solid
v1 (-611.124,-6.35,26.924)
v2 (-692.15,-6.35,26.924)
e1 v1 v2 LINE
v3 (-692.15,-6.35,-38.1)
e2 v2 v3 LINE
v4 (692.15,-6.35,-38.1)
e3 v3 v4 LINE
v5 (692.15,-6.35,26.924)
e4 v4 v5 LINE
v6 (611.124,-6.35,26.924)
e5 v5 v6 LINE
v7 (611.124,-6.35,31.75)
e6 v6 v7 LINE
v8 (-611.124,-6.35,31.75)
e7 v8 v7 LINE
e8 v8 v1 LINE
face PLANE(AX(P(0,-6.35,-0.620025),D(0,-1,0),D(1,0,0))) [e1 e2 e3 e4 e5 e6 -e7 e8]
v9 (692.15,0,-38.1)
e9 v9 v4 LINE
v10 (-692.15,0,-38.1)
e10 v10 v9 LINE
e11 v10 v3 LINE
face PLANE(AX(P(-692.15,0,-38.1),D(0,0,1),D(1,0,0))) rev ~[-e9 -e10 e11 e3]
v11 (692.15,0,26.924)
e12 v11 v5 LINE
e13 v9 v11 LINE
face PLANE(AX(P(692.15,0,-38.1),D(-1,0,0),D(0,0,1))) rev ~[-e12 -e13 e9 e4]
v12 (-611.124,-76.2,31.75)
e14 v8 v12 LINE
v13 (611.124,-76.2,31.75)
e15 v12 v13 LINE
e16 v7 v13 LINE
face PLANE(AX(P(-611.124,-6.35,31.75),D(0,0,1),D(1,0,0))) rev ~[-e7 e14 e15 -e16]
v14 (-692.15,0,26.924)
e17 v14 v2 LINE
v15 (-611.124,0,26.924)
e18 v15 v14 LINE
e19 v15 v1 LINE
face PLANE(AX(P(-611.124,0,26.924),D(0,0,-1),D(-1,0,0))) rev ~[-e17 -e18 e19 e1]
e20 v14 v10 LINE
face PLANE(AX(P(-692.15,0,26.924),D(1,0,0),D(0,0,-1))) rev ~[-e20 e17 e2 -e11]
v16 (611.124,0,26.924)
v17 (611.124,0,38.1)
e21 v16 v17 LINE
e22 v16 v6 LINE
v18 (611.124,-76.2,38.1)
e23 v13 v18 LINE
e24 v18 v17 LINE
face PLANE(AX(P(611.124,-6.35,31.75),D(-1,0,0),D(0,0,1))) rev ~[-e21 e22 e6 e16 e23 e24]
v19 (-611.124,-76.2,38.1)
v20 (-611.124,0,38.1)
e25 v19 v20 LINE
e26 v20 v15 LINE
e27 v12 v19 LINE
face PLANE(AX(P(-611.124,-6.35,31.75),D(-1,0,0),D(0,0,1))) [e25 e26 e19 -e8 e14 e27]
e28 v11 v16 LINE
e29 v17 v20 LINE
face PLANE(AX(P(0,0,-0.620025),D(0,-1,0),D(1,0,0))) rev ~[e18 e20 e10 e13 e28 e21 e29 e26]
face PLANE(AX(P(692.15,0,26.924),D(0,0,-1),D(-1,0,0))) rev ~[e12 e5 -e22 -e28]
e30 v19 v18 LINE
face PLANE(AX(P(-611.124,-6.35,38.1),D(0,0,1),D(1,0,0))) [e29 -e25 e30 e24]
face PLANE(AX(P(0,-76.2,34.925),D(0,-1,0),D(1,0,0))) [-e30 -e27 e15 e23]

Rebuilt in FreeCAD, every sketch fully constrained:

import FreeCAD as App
import Part
import Sketcher
Q = App.Units.Quantity

doc = App.newDocument("Part")
params = doc.addObject("Spreadsheet::Sheet", "Params")
for row, (alias, value) in enumerate([
    ("sketch1_width", "54.5 in"),
    ("sketch1_width2", "3.19 in"),
    ("sketch1_height", "2.56 in"),
    ("pad1_length", "0.25 in"),
    ("sketch2_width", "48.12 in"),
    ("sketch2_height", "0.25 in"),
    ("pad2_length", "2.75 in"),
], start=1):
    params.set(f"A{row}", alias)
    params.set(f"B{row}", "=" + value)
    params.setAlias(f"B{row}", alias)

body = doc.addObject("PartDesign::Body", "Body")

# Sketch on XZ plane
sketch1 = body.newObject("Sketcher::SketchObject", "Sketch")
sketch1.AttachmentSupport = (doc.getObject("XZ_Plane"), [""])
sketch1.MapMode = "FlatFace"
sketch1.addGeometry(Part.LineSegment(App.Vector(-692, 27, 0), App.Vector(-692, -38, 0)), False)
sketch1.addGeometry(Part.LineSegment(App.Vector(-692, -38, 0), App.Vector(692, -38, 0)), False)
sketch1.addGeometry(Part.LineSegment(App.Vector(692, -38, 0), App.Vector(692, 27, 0)), False)
sketch1.addGeometry(Part.LineSegment(App.Vector(692, 27, 0), App.Vector(611, 27, 0)), False)
sketch1.addGeometry(Part.LineSegment(App.Vector(611, 27, 0), App.Vector(611, 38, 0)), False)
sketch1.addGeometry(Part.LineSegment(App.Vector(611, 38, 0), App.Vector(-611, 38, 0)), False)
sketch1.addGeometry(Part.LineSegment(App.Vector(-611, 38, 0), App.Vector(-611, 27, 0)), False)
sketch1.addGeometry(Part.LineSegment(App.Vector(-611, 27, 0), App.Vector(-692, 27, 0)), False)
sketch1.addConstraint(Sketcher.Constraint("Coincident", 0, 2, 1, 1))
sketch1.addConstraint(Sketcher.Constraint("Coincident", 1, 2, 2, 1))
sketch1.addConstraint(Sketcher.Constraint("Coincident", 2, 2, 3, 1))
sketch1.addConstraint(Sketcher.Constraint("Coincident", 3, 2, 4, 1))
sketch1.addConstraint(Sketcher.Constraint("Coincident", 4, 2, 5, 1))
sketch1.addConstraint(Sketcher.Constraint("Coincident", 5, 2, 6, 1))
sketch1.addConstraint(Sketcher.Constraint("Coincident", 6, 2, 7, 1))
sketch1.addConstraint(Sketcher.Constraint("Coincident", 7, 2, 0, 1))
sketch1.addConstraint(Sketcher.Constraint("Vertical", 0))
sketch1.addConstraint(Sketcher.Constraint("Horizontal", 1))
sketch1.addConstraint(Sketcher.Constraint("Vertical", 2))
sketch1.addConstraint(Sketcher.Constraint("Horizontal", 3))
sketch1.addConstraint(Sketcher.Constraint("Vertical", 4))
sketch1.addConstraint(Sketcher.Constraint("Horizontal", 5))
sketch1.addConstraint(Sketcher.Constraint("Vertical", 6))
sketch1.addConstraint(Sketcher.Constraint("Horizontal", 7))
sketch1.addConstraint(Sketcher.Constraint("Symmetric", 3, 2, 6, 2, -2))
sketch1.addConstraint(Sketcher.Constraint("Equal", 3, 7))
sketch1.addConstraint(Sketcher.Constraint("DistanceX", 1, 1, 1, 2, Q("54.5 in")))
sketch1.addConstraint(Sketcher.Constraint("DistanceY", 1, 2, 4, 2, Q("3 in")))
sketch1.addConstraint(Sketcher.Constraint("DistanceX", 3, 2, 3, 1, Q("3.19 in")))
sketch1.addConstraint(Sketcher.Constraint("DistanceY", 0, 2, 0, 1, Q("2.56 in")))
sketch1.addConstraint(Sketcher.Constraint("DistanceY", 0, 2, -1, 1, Q("1.5 in")))
sketch1.setExpression("Constraints[18]", "Params.sketch1_width")
sketch1.setExpression("Constraints[20]", "Params.sketch1_width2")
sketch1.setExpression("Constraints[21]", "Params.sketch1_height")
pad1 = body.newObject("PartDesign::Pad", "Pad")
pad1.Profile = sketch1
pad1.setExpression("Length", "Params.pad1_length")

# Sketch on XZ plane
sketch2 = body.newObject("Sketcher::SketchObject", "Sketch001")
sketch2.AttachmentSupport = (doc.getObject("XZ_Plane"), [""])
sketch2.MapMode = "FlatFace"
sketch2.AttachmentOffset = App.Placement(App.Vector(0, 0, 0.25 * 25.4), App.Rotation())
sketch2.addGeometry(Part.LineSegment(App.Vector(-611, 38, 0), App.Vector(-611, 32, 0)), False)
sketch2.addGeometry(Part.LineSegment(App.Vector(-611, 32, 0), App.Vector(611, 32, 0)), False)
sketch2.addGeometry(Part.LineSegment(App.Vector(611, 32, 0), App.Vector(611, 38, 0)), False)
sketch2.addGeometry(Part.LineSegment(App.Vector(611, 38, 0), App.Vector(-611, 38, 0)), False)
sketch2.addConstraint(Sketcher.Constraint("Coincident", 0, 2, 1, 1))
sketch2.addConstraint(Sketcher.Constraint("Coincident", 1, 2, 2, 1))
sketch2.addConstraint(Sketcher.Constraint("Coincident", 2, 2, 3, 1))
sketch2.addConstraint(Sketcher.Constraint("Coincident", 3, 2, 0, 1))
sketch2.addConstraint(Sketcher.Constraint("Vertical", 0))
sketch2.addConstraint(Sketcher.Constraint("Horizontal", 1))
sketch2.addConstraint(Sketcher.Constraint("Vertical", 2))
sketch2.addConstraint(Sketcher.Constraint("Horizontal", 3))
sketch2.addConstraint(Sketcher.Constraint("DistanceX", 1, 1, 1, 2, Q("48.12 in")))
sketch2.addConstraint(Sketcher.Constraint("DistanceY", 0, 2, 0, 1, Q("0.25 in")))
sketch2.addConstraint(Sketcher.Constraint("DistanceY", -1, 1, 2, 2, Q("1.5 in")))
sketch2.addConstraint(Sketcher.Constraint("DistanceX", 0, 2, -1, 1, Q("24.06 in")))
sketch2.setExpression("Constraints[8]", "Params.sketch2_width")
sketch2.setExpression("Constraints[9]", "Params.sketch2_height")
pad2 = body.newObject("PartDesign::Pad", "Pad001")
pad2.Profile = sketch2
pad2.setExpression("Length", "Params.pad2_length")

doc.recompute()
